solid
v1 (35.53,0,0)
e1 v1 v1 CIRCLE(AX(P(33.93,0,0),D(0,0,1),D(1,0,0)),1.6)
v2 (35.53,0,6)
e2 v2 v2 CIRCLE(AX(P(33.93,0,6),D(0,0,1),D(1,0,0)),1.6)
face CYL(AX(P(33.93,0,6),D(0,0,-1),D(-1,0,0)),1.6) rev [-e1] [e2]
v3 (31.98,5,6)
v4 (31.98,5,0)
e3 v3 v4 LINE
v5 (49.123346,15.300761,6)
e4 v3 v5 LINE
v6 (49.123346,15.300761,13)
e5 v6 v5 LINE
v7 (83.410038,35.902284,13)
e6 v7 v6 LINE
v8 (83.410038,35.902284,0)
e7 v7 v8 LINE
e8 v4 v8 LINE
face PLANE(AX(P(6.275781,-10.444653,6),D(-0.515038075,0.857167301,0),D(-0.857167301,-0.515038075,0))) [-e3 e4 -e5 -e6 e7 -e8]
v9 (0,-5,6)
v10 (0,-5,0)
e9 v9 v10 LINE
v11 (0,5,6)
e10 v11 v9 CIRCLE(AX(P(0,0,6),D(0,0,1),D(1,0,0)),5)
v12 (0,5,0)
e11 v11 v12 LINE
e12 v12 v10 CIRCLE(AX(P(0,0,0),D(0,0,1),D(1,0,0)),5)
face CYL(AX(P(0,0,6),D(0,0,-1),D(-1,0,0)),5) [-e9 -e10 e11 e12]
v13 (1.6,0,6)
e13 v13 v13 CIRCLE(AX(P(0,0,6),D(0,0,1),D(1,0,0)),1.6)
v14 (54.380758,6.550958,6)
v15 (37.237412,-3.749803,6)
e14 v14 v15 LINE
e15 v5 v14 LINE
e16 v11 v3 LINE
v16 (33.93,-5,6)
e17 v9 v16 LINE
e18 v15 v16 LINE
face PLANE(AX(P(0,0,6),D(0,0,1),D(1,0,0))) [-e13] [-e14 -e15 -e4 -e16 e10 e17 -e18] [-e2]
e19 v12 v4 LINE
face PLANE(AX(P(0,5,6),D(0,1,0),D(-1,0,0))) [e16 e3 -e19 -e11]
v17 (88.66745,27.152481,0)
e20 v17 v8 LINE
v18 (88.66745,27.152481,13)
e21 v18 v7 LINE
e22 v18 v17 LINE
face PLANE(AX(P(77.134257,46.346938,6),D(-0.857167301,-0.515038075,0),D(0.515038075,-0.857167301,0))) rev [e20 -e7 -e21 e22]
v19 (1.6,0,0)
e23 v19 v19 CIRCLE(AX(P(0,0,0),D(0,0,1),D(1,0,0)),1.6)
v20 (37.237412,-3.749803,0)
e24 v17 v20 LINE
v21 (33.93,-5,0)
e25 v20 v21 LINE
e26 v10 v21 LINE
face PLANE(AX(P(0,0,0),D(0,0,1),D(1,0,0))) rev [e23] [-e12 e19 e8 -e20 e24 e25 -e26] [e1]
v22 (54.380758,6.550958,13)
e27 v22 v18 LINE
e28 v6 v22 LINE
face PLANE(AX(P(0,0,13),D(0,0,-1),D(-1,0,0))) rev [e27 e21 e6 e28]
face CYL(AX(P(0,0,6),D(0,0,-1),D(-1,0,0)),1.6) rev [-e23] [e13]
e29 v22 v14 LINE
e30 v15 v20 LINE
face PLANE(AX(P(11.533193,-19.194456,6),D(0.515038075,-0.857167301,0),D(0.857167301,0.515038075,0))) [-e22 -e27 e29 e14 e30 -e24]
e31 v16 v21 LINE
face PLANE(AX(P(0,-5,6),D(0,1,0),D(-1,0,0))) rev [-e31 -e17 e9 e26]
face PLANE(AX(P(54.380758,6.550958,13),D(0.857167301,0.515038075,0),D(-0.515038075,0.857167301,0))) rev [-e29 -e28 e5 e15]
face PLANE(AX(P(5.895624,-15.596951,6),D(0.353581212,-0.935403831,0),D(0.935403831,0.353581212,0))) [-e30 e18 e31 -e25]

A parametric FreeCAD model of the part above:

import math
import FreeCAD as App
import Part
import Sketcher
from FreeCAD import Vector
Q = App.Units.Quantity


def add_polygon(sketch, points):
    """Adds a closed chain of lines whose ends are joined by coincident constraints."""
    first, n = sketch.GeometryCount, len(points)
    for a, b in zip(points, points[1:] + points[:1]):
        sketch.addGeometry(Part.LineSegment(App.Vector(*a, 0), App.Vector(*b, 0)), False)
    for i in range(n):
        sketch.addConstraint(Sketcher.Constraint("Coincident", first + i, 2, first + (i + 1) % n, 1))

doc = App.newDocument("Part")
body = doc.addObject("PartDesign::Body", "Body")

# Sketch on XY plane
sketch1 = body.newObject("Sketcher::SketchObject", "Sketch")
sketch1.AttachmentSupport = (doc.getObject("XY_Plane"), [""])
sketch1.MapMode = "FlatFace"
sketch1.addGeometry([
    Part.ArcOfCircle(Part.Circle(Vector(0, 0, 0), Vector(0, 0, 1), 5), math.radians(90), math.radians(270)),  # 0
    Part.LineSegment(Vector(0, -5, 0), Vector(33.9, -5, 0)),  # 1
    Part.LineSegment(Vector(33.9, -5, 0), Vector(37.2, -3.7, 0)),  # 2
    Part.LineSegment(Vector(37.2, -3.7, 0), Vector(88.7, 27.2, 0)),  # 3
    Part.LineSegment(Vector(88.7, 27.2, 0), Vector(83.4, 35.9, 0)),  # 4
    Part.LineSegment(Vector(83.4, 35.9, 0), Vector(32, 5, 0)),  # 5
    Part.LineSegment(Vector(32, 5, 0), Vector(0, 5, 0)),  # 6
    Part.Circle(Vector(0, 0, 0), Vector(0, 0, 1), 1.6),  # 7
    Part.Circle(Vector(33.9, 0, 0), Vector(0, 0, 1), 1.6),  # 8
], False)
sketch1.addConstraint([
    Sketcher.Constraint("Tangent", 0, 2, 1, 1),
    Sketcher.Constraint("Coincident", 1, 2, 2, 1),
    Sketcher.Constraint("Coincident", 2, 2, 3, 1),
    Sketcher.Constraint("Coincident", 3, 2, 4, 1),
    Sketcher.Constraint("Coincident", 4, 2, 5, 1),
    Sketcher.Constraint("Coincident", 5, 2, 6, 1),
    Sketcher.Constraint("Tangent", 6, 2, 0, 1),
    Sketcher.Constraint("Horizontal", 1),
    Sketcher.Constraint("Horizontal", 6),
    Sketcher.Constraint("Coincident", 0, 3, -1, 1),
    Sketcher.Constraint("Coincident", 7, 3, -1, 1),
    Sketcher.Constraint("Equal", 7, 8),
    Sketcher.Constraint("PointOnObject", 8, 3, -1),
    Sketcher.Constraint("Perpendicular", 3, 4),
    Sketcher.Constraint("Perpendicular", 4, 5),
    Sketcher.Constraint("Vertical", 8, 3, 1, 2),
    Sketcher.Constraint("Equal", 3, 5),
    Sketcher.Constraint("Radius", 0, 5.0),
    Sketcher.Constraint("Diameter", 7, 3.2),
    Sketcher.Constraint("Angle", 3, Q("31 deg")),
    Sketcher.Constraint("Distance", 3, 60.0),
    Sketcher.Constraint("DistanceX", 1, 1, 1, 2, 33.93),
    Sketcher.Constraint("DistanceX", 6, 2, 6, 1, 31.98),
    Sketcher.Constraint("DistanceX", -1, 1, 3, 2, 88.66745),
])
pad1 = body.newObject("PartDesign::Pad", "Pad")
pad1.Profile = sketch1
pad1.Length = 6

# Sketch on XY plane
sketch2 = body.newObject("Sketcher::SketchObject", "Sketch001")
sketch2.AttachmentSupport = (doc.getObject("XY_Plane"), [""])
sketch2.MapMode = "FlatFace"
sketch2.AttachmentOffset = App.Placement(Vector(0, 0, 6), App.Rotation())
add_polygon(sketch2, [(89, 27), (83, 36), (49, 15), (54, 7)])  # lines 0-3
sketch2.addConstraint([
    Sketcher.Constraint("Perpendicular", 0, 1),
    Sketcher.Constraint("Perpendicular", 1, 2),
    Sketcher.Constraint("Perpendicular", 2, 3),
    Sketcher.Constraint("Angle", 0, Q("121 deg")),
    Sketcher.Constraint("Distance", 1, 40.0),
    Sketcher.Constraint("DistanceX", -1, 1, 0, 2, 83.410038),
    Sketcher.Constraint("DistanceY", -1, 1, 1, 2, 15.300761),
    Sketcher.Constraint("DistanceX", -1, 1, 2, 2, 54.380758),
])
pad2 = body.newObject("PartDesign::Pad", "Pad001")
pad2.Profile = sketch2
pad2.Length = 7

doc.recompute()
